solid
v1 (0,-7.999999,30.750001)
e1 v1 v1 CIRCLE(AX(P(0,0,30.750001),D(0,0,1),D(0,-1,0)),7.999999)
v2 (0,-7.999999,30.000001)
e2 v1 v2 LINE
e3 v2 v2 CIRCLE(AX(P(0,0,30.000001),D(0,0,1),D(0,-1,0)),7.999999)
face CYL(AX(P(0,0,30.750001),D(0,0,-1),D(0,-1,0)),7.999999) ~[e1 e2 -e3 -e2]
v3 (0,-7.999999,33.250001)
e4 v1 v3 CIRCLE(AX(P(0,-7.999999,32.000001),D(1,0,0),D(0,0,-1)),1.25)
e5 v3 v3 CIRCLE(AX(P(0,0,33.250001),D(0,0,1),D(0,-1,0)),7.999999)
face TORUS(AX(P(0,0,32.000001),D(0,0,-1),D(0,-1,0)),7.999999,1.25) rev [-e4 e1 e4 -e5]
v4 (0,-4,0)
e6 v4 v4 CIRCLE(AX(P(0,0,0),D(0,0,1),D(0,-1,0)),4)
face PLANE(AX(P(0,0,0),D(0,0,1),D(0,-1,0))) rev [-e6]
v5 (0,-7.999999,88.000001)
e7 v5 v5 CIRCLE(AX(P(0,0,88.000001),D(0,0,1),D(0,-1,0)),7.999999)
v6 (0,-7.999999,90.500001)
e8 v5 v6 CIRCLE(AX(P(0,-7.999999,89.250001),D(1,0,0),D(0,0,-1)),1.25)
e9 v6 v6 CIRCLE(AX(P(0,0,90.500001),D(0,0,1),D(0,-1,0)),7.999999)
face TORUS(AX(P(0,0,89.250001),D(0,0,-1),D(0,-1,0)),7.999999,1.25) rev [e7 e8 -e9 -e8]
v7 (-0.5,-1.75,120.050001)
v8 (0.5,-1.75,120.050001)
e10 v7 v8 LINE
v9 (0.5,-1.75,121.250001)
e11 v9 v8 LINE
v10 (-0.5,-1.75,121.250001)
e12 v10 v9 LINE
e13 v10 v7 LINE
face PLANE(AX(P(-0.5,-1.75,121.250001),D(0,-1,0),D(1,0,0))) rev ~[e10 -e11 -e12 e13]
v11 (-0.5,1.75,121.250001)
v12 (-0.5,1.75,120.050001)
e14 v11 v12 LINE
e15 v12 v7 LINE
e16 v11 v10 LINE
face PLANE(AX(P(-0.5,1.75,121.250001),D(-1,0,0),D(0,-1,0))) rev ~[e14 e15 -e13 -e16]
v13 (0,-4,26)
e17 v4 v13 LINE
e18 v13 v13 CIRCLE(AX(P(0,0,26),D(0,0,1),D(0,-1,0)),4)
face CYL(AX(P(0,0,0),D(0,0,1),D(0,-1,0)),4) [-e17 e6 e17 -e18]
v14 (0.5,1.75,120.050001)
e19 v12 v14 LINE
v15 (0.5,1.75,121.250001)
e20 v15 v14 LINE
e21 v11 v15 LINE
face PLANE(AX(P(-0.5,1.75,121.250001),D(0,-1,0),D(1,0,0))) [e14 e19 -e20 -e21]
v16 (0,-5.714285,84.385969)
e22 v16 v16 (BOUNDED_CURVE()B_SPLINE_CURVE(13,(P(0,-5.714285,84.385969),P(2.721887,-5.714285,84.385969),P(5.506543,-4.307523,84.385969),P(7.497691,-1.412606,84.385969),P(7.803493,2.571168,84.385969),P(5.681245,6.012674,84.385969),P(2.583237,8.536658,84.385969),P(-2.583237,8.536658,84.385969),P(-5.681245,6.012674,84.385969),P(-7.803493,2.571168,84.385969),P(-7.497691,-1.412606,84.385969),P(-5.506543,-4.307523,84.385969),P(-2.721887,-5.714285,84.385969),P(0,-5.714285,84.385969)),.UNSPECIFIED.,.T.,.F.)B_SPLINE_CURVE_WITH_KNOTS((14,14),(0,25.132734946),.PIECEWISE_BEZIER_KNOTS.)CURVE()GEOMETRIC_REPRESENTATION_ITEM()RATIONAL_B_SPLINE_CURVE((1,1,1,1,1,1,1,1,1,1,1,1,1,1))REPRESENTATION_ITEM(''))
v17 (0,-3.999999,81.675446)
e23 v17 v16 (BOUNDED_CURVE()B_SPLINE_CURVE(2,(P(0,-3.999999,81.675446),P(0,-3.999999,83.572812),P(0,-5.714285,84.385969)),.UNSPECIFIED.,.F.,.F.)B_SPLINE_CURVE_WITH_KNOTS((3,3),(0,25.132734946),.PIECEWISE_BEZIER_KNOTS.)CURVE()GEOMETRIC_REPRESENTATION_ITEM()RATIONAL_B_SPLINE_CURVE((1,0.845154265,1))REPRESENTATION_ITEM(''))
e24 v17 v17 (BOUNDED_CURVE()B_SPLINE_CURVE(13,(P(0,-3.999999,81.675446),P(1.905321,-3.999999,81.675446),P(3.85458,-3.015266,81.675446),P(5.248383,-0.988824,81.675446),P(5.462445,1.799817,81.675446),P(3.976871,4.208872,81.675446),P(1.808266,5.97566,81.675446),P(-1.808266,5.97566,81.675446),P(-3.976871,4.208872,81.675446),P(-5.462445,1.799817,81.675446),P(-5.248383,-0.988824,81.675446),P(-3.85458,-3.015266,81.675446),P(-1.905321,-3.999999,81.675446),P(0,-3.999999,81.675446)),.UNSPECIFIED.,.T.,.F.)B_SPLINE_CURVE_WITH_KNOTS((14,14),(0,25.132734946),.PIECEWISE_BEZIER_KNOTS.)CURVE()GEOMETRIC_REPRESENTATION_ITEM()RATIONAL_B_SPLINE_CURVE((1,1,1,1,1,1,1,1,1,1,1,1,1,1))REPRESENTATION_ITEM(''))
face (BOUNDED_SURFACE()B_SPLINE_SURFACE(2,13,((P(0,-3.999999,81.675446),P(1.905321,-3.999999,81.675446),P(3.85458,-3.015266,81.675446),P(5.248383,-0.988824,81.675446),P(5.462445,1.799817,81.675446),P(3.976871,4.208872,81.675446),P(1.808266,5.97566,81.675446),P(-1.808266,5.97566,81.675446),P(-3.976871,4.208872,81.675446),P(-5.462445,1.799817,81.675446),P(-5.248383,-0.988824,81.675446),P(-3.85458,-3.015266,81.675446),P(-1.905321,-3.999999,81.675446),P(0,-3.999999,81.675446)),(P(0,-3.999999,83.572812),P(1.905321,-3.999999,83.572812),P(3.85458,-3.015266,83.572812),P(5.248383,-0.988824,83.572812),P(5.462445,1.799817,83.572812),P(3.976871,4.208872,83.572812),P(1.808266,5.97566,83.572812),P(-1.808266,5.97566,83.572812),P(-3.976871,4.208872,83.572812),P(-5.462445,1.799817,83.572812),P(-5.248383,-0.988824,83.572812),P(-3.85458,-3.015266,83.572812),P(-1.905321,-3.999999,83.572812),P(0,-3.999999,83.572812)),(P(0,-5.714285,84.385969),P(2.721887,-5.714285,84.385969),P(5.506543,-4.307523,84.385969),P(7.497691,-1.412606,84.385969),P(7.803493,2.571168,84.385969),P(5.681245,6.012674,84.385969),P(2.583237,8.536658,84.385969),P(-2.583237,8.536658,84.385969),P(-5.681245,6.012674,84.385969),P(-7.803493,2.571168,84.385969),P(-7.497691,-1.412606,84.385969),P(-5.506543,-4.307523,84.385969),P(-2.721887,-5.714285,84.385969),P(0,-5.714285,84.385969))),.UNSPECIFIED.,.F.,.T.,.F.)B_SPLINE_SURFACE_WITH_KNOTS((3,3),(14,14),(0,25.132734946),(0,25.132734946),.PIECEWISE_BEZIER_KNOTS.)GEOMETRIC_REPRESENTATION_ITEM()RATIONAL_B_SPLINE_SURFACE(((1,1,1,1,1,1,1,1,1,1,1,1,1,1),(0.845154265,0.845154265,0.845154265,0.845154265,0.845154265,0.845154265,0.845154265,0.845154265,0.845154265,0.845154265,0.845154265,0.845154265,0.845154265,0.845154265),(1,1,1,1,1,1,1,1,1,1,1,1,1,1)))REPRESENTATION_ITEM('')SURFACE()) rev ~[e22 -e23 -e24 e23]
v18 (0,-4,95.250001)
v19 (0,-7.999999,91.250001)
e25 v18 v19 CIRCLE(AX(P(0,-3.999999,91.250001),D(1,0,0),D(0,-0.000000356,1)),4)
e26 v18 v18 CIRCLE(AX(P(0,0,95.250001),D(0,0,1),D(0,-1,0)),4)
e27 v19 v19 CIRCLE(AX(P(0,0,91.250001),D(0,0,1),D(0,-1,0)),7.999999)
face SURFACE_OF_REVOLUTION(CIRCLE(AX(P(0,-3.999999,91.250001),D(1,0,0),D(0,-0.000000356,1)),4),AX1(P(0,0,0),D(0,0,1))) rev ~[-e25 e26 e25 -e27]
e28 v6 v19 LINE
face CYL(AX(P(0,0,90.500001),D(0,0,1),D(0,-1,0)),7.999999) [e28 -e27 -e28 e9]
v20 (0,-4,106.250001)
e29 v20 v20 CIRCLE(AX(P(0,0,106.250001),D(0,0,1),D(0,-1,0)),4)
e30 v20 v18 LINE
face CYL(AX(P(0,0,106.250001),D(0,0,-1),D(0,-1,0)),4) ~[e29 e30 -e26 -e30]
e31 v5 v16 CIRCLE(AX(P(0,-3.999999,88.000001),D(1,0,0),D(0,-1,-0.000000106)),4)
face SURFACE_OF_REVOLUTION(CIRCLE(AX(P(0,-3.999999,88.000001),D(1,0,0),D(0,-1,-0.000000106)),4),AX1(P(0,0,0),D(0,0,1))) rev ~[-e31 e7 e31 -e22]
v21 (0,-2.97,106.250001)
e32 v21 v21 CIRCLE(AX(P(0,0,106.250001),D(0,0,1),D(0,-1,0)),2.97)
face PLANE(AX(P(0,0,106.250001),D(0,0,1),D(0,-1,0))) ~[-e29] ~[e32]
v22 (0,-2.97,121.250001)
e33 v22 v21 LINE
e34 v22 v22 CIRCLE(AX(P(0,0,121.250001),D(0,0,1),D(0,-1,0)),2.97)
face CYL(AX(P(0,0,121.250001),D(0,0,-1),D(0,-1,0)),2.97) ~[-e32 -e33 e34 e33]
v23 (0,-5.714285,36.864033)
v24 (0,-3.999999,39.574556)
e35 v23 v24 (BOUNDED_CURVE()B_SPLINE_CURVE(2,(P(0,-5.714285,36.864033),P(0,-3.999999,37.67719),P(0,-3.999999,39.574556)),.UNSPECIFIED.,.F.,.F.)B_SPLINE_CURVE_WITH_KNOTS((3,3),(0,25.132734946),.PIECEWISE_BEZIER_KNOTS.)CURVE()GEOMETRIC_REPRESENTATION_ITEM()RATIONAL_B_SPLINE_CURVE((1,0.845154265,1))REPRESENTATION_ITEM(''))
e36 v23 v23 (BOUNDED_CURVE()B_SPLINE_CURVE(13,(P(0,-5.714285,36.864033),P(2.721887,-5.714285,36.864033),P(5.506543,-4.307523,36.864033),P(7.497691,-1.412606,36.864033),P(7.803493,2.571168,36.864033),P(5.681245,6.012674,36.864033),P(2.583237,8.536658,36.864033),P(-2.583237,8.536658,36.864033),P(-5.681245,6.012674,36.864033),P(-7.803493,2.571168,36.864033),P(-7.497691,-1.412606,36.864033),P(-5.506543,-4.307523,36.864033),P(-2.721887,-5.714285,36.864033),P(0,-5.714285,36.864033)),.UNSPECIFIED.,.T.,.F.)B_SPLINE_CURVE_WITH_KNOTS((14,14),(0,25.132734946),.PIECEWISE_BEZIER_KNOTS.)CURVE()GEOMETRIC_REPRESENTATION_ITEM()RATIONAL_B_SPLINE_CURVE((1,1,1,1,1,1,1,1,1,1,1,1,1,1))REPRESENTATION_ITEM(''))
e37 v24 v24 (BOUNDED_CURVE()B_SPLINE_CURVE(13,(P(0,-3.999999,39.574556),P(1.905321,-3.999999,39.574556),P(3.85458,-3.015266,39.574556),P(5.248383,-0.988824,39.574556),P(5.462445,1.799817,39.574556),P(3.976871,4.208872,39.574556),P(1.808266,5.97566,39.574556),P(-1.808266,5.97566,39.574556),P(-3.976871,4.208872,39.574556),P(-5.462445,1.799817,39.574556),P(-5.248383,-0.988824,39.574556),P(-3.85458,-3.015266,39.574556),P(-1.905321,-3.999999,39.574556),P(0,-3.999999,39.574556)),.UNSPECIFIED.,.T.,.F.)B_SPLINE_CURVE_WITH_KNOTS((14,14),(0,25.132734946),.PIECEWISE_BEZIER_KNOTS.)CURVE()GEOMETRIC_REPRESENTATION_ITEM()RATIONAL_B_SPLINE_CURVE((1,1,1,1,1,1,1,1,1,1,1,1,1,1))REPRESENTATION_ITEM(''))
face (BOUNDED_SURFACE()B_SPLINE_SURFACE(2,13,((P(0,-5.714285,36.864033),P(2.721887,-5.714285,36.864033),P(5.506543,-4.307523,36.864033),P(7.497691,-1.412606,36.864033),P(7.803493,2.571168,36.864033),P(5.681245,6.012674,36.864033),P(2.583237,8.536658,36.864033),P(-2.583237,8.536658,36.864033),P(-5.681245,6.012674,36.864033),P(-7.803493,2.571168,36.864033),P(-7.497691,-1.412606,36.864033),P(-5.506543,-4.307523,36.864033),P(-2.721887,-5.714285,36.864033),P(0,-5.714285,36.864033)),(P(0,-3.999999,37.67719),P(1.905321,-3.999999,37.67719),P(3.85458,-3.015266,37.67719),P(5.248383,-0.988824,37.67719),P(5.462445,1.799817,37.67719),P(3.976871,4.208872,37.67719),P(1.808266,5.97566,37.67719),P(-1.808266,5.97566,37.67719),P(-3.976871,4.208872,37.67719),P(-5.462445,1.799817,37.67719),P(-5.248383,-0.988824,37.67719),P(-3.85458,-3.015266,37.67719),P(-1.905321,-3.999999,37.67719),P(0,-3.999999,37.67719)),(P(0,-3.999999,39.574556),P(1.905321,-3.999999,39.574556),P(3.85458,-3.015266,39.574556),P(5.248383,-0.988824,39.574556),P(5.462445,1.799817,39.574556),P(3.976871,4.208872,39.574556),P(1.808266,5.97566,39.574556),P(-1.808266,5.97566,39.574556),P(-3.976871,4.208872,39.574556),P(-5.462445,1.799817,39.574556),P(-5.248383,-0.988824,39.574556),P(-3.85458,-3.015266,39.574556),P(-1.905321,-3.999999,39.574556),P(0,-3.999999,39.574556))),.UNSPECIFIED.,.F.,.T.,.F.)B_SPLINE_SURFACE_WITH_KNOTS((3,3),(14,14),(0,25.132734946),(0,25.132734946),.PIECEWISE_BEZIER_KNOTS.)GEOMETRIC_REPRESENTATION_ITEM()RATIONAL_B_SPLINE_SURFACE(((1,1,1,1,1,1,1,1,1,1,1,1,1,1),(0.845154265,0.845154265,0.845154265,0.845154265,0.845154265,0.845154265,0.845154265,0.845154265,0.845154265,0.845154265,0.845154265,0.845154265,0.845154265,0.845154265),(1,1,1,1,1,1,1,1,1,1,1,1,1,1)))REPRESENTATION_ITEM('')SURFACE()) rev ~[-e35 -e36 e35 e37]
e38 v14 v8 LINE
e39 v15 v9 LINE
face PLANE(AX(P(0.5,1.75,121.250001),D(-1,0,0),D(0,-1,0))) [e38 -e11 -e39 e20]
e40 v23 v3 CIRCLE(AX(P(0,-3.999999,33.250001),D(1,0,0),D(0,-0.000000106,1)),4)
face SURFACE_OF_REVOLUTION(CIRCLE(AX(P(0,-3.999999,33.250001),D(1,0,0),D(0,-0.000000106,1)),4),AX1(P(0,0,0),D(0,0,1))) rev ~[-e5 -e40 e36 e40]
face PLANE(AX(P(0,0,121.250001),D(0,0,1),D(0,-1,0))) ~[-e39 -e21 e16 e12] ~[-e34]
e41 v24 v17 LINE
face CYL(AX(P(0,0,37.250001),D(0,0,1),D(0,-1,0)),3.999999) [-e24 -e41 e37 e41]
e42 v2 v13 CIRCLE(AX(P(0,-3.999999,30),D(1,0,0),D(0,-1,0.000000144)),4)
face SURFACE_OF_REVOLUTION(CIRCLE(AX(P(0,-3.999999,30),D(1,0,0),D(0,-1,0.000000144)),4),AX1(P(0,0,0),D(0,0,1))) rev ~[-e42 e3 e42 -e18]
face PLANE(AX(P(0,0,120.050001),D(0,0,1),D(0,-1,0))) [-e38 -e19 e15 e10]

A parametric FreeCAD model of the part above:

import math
import FreeCAD as App
import Part
import Sketcher
Q = App.Units.Quantity


def edges_at(feature, points):
    """Names of the edges that pass closest to the given points."""
    edges = feature.Shape.Edges
    near = lambda p: min(range(len(edges)), key=lambda i: edges[i].distToShape(Part.Vertex(*p))[0])
    return sorted({f"Edge{near(p) + 1}" for p in points})

doc = App.newDocument("Part")
body = doc.addObject("PartDesign::Body", "Body")

sketch1 = doc.addObject("Sketcher::SketchObject", "Sketch")
body.addObject(sketch1)
sketch1.AttachmentSupport = (doc.YZ_Plane, [""])
sketch1.MapMode = "FlatFace"
sketch1.addGeometry([
    Part.LineSegment(App.Vector(-4, 0, 0), App.Vector(0, 0, 0)),
    Part.LineSegment(App.Vector(0, 0, 0), App.Vector(0, 121.3, 0)),
    Part.LineSegment(App.Vector(0, 121.3, 0), App.Vector(-3, 121.3, 0)),
    Part.LineSegment(App.Vector(-3, 121.3, 0), App.Vector(-3, 106.3, 0)),
    Part.LineSegment(App.Vector(-3, 106.3, 0), App.Vector(-4, 106.3, 0)),
    Part.LineSegment(App.Vector(-4, 106.3, 0), App.Vector(-4, 95.3, 0)),
    Part.ArcOfCircle(Part.Circle(App.Vector(-4, 91.3, 0), App.Vector(0, 0, 1), 4), math.radians(90), math.radians(180)),
    Part.LineSegment(App.Vector(-8, 91.3, 0), App.Vector(-8, 90.5, 0)),
    Part.ArcOfCircle(Part.Circle(App.Vector(-8, 89.3, 0), App.Vector(0, 0, 1), 1.2), math.radians(-90), math.radians(90)),
    Part.ArcOfCircle(Part.Circle(App.Vector(-4, 88, 0), App.Vector(0, 0, 1), 4), math.radians(-180), math.radians(-90)),
    Part.LineSegment(App.Vector(-4, 84, 0), App.Vector(-4, 37.3, 0)),
    Part.ArcOfCircle(Part.Circle(App.Vector(-4, 33.3, 0), App.Vector(0, 0, 1), 4), math.radians(90), math.radians(180)),
    Part.ArcOfCircle(Part.Circle(App.Vector(-8, 32, 0), App.Vector(0, 0, 1), 1.2), math.radians(-90), math.radians(90)),
    Part.LineSegment(App.Vector(-8, 30.8, 0), App.Vector(-8, 30, 0)),
    Part.ArcOfCircle(Part.Circle(App.Vector(-4, 30, 0), App.Vector(0, 0, 1), 4), math.radians(180), math.radians(270)),
    Part.LineSegment(App.Vector(-4, 26, 0), App.Vector(-4, 0, 0)),
], False)
sketch1.addConstraint([
    Sketcher.Constraint("Coincident", 0, 2, 1, 1),
    Sketcher.Constraint("Coincident", 1, 2, 2, 1),
    Sketcher.Constraint("Coincident", 2, 2, 3, 1),
    Sketcher.Constraint("Coincident", 3, 2, 4, 1),
    Sketcher.Constraint("Coincident", 4, 2, 5, 1),
    Sketcher.Constraint("Coincident", 5, 2, 6, 1),
    Sketcher.Constraint("Tangent", 6, 2, 7, 1),
    Sketcher.Constraint("Coincident", 7, 2, 8, 2),
    Sketcher.Constraint("Coincident", 8, 1, 9, 1),
    Sketcher.Constraint("Coincident", 9, 2, 10, 1),
    Sketcher.Constraint("Coincident", 10, 2, 11, 1),
    Sketcher.Constraint("Coincident", 11, 2, 12, 2),
    Sketcher.Constraint("Coincident", 12, 1, 13, 1),
    Sketcher.Constraint("Tangent", 13, 2, 14, 1),
    Sketcher.Constraint("Coincident", 14, 2, 15, 1),
    Sketcher.Constraint("Coincident", 15, 2, 0, 1),
    Sketcher.Constraint("Horizontal", 0),
    Sketcher.Constraint("Vertical", 1),
    Sketcher.Constraint("Horizontal", 2),
    Sketcher.Constraint("Vertical", 3),
    Sketcher.Constraint("Horizontal", 4),
    Sketcher.Constraint("Vertical", 5),
    Sketcher.Constraint("Vertical", 7),
    Sketcher.Constraint("Vertical", 10),
    Sketcher.Constraint("Vertical", 13),
    Sketcher.Constraint("Vertical", 15),
    Sketcher.Constraint("Coincident", 0, 2, -1, 1),
    Sketcher.Constraint("Equal", 6, 9),
    Sketcher.Constraint("Equal", 9, 11),
    Sketcher.Constraint("Equal", 8, 12),
    Sketcher.Constraint("Equal", 11, 14),
    Sketcher.Constraint("Horizontal", 9, 3, 8, 1),
    Sketcher.Constraint("Vertical", 6, 3, 9, 3),
    Sketcher.Constraint("Vertical", 9, 3, 11, 3),
    Sketcher.Constraint("Vertical", 8, 3, 12, 3),
    Sketcher.Constraint("Vertical", 11, 3, 14, 3),
    Sketcher.Constraint("Vertical", 14, 3, 4, 2),
    Sketcher.Constraint("Vertical", 12, 3, 6, 2),
    Sketcher.Constraint("Vertical", 5, 2, 9, 2),
    Sketcher.Constraint("Vertical", 10, 2, 14, 2),
    Sketcher.Constraint("Equal", 7, 13),
    Sketcher.Constraint("Radius", 6, Q("4 mm")),
    Sketcher.Constraint("DistanceX", 0, 1, 0, 2, Q("4 mm")),
    Sketcher.Constraint("DistanceY", 3, 2, 3, 1, Q("15 mm")),
    Sketcher.Constraint("DistanceY", 5, 2, 5, 1, Q("11 mm")),
    Sketcher.Constraint("DistanceY", 15, 2, 15, 1, Q("26 mm")),
    Sketcher.Constraint("Radius", 8, Q("1.25 mm")),
    Sketcher.Constraint("DistanceY", -1, 1, 9, 3, Q("88.000001 mm")),
    Sketcher.Constraint("DistanceY", -1, 1, 12, 3, Q("32.000001 mm")),
    Sketcher.Constraint("DistanceY", 11, 3, 8, 3, Q("56 mm")),
    Sketcher.Constraint("DistanceX", 2, 2, 2, 1, Q("2.97 mm")),
])
revolution = doc.addObject("PartDesign::Revolution", "Revolution")
body.addObject(revolution)
revolution.Profile = sketch1
revolution.ReferenceAxis = (sketch1, ["V_Axis"])
revolution.Angle = 360
doc.recompute()

fillet = doc.addObject("PartDesign::Fillet", "Fillet")
body.addObject(fillet)
fillet.Base = (revolution, edges_at(revolution, [(0, 4, 37.25), (0, 4, 84), (0, -4, 60.625)]))
fillet.Radius = 3

sketch2 = doc.addObject("Sketcher::SketchObject", "Sketch001")
body.addObject(sketch2)
sketch2.AttachmentSupport = (doc.XY_Plane, [""])
sketch2.MapMode = "FlatFace"
sketch2.AttachmentOffset = App.Placement(App.Vector(0, 0, 121.250001), App.Rotation())
sketch2.addGeometry([
    Part.LineSegment(App.Vector(0.5, 1.8, 0), App.Vector(-0.5, 1.8, 0)),
    Part.LineSegment(App.Vector(-0.5, 1.8, 0), App.Vector(-0.5, -1.8, 0)),
    Part.LineSegment(App.Vector(-0.5, -1.8, 0), App.Vector(0.5, -1.8, 0)),
    Part.LineSegment(App.Vector(0.5, -1.8, 0), App.Vector(0.5, 1.8, 0)),
], False)
sketch2.addConstraint([
    Sketcher.Constraint("Coincident", 0, 2, 1, 1),
    Sketcher.Constraint("Coincident", 1, 2, 2, 1),
    Sketcher.Constraint("Coincident", 2, 2, 3, 1),
    Sketcher.Constraint("Coincident", 3, 2, 0, 1),
    Sketcher.Constraint("Horizontal", 0),
    Sketcher.Constraint("Vertical", 1),
    Sketcher.Constraint("Horizontal", 2),
    Sketcher.Constraint("Vertical", 3),
    Sketcher.Constraint("Symmetric", 0, 2, 2, 2, -1, 1),
    Sketcher.Constraint("DistanceX", 0, 2, 0, 1, Q("1 mm")),
    Sketcher.Constraint("DistanceY", 1, 2, 1, 1, Q("3.5 mm")),
])
pocket1 = doc.addObject("PartDesign::Pocket", "Pocket")
body.addObject(pocket1)
pocket1.Profile = sketch2
pocket1.Length = 1.2

doc.recompute()
